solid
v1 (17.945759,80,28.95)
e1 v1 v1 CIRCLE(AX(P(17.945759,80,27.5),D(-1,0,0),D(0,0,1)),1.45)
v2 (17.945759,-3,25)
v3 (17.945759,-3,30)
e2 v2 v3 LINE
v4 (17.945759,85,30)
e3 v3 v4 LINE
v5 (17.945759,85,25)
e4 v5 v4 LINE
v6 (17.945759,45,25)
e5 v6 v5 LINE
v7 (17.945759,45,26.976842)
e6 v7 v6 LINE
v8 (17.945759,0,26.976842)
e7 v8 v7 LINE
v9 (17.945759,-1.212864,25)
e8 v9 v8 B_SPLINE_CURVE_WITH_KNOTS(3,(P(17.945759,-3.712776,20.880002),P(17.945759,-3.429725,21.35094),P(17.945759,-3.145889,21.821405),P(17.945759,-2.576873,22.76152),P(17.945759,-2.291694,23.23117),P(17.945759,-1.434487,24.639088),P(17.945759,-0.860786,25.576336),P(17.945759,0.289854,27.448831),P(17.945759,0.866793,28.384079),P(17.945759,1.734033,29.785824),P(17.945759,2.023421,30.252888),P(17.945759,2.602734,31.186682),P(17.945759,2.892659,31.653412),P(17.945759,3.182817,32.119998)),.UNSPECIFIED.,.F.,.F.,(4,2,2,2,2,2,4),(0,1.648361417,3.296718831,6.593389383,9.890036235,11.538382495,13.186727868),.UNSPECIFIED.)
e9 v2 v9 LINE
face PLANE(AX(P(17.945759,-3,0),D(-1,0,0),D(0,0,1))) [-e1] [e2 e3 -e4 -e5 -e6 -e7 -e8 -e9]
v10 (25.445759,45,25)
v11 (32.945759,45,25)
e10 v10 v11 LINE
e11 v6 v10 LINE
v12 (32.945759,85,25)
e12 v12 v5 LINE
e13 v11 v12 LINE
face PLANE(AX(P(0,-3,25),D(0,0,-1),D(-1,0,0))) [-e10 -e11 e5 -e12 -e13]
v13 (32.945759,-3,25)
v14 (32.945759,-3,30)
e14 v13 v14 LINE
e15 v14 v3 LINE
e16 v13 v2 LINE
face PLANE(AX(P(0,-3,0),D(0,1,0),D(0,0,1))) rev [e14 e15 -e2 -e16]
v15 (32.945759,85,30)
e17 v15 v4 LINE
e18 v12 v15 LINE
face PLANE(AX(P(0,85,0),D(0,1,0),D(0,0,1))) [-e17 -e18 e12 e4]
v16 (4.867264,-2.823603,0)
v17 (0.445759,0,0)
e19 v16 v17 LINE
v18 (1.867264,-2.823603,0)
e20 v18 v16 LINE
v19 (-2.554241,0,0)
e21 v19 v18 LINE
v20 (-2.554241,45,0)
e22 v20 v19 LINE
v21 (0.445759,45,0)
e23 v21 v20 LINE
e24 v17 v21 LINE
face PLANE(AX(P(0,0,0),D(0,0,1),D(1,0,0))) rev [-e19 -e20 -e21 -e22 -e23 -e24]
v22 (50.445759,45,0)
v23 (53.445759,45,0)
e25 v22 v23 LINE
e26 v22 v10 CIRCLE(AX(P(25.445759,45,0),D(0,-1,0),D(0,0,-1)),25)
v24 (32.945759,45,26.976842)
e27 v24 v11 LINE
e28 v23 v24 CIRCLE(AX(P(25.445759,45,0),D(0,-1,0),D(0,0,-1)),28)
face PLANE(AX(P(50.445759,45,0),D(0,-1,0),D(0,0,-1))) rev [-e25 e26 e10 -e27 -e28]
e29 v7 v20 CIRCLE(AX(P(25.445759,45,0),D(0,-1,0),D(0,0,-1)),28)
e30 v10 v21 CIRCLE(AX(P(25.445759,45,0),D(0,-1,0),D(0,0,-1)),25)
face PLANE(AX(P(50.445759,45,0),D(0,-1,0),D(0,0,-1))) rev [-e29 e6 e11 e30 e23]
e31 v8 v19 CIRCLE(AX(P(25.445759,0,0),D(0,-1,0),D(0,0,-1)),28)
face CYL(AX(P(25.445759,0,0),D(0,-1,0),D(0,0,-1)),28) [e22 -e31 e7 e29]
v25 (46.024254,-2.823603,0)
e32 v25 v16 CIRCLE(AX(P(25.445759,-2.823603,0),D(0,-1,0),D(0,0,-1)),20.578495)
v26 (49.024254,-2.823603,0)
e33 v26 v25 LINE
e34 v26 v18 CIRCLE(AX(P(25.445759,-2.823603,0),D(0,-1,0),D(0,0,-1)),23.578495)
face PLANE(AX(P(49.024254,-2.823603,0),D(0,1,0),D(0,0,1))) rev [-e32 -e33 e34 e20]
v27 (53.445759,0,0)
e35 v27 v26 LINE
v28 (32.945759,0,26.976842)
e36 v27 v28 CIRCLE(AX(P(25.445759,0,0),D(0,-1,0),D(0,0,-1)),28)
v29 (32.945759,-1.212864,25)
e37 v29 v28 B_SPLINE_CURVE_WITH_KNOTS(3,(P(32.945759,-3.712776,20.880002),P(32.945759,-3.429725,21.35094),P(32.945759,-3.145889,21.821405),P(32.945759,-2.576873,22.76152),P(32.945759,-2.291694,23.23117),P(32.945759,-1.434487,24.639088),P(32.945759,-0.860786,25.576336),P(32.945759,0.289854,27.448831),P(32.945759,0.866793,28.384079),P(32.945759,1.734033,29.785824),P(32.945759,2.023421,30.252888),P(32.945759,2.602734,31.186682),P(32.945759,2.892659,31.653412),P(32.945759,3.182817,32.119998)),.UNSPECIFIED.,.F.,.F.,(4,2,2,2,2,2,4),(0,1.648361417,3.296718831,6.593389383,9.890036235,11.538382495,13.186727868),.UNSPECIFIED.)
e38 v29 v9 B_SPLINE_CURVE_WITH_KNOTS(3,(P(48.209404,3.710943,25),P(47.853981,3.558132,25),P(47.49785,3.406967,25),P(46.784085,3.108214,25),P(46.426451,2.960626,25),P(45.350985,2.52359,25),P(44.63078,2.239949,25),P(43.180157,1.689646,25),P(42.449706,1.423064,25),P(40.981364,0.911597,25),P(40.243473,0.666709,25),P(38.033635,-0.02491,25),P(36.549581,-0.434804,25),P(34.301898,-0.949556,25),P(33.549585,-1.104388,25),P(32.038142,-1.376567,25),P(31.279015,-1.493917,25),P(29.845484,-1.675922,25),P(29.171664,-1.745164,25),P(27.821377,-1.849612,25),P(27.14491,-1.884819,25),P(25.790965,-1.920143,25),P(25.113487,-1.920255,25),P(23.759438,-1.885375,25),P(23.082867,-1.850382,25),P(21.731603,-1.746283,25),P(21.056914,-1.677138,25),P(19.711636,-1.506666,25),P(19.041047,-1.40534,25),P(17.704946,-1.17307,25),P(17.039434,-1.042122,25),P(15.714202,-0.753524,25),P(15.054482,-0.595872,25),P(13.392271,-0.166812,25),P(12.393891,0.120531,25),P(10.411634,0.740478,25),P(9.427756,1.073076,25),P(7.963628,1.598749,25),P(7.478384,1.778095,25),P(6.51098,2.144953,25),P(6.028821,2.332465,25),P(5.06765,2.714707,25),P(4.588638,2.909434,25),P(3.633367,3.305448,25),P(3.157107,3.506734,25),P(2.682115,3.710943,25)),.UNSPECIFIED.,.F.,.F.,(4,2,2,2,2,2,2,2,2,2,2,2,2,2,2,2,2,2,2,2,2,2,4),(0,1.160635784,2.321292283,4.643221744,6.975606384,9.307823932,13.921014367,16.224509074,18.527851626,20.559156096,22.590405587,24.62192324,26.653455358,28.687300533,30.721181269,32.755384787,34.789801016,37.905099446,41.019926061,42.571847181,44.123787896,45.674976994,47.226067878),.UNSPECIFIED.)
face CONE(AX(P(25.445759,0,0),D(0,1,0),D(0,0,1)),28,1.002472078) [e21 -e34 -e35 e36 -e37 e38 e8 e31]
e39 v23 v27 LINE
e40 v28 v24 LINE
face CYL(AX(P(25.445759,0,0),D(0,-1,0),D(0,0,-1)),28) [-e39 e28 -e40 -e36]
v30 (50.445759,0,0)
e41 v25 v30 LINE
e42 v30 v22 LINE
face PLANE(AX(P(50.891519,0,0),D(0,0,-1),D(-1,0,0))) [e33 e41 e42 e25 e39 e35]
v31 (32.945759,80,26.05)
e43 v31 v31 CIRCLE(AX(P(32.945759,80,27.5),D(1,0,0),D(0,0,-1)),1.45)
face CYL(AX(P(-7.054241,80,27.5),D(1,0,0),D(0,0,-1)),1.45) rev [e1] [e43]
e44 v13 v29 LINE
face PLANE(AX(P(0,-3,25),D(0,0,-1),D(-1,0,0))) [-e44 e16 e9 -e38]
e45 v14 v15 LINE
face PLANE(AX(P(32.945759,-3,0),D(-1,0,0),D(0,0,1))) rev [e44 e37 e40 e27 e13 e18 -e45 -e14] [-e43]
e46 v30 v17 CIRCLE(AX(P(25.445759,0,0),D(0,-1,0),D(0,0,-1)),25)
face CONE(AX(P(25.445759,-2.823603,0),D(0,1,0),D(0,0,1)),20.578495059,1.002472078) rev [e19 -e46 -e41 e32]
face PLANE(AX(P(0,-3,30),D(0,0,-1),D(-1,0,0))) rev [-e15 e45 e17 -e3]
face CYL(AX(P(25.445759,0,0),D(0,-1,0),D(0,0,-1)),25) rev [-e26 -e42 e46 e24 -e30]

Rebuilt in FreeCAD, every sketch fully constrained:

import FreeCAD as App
import Part
import Sketcher

V = App.Vector

doc = App.newDocument("Part")
body = doc.addObject("PartDesign::Body", "Body")

sketch1 = body.newObject("Sketcher::SketchObject", "Sketch")
sketch1.AttachmentSupport = (doc.getObject("XY_Plane"), [""])
sketch1.MapMode = "FlatFace"
sketch1.addGeometry([
    Part.LineSegment(V(4.9, -2.8, 0), V(0.4, 0, 0)),
    Part.LineSegment(V(0.4, 0, 0), V(0.4, 45, 0)),
    Part.LineSegment(V(0.4, 45, 0), V(-2.6, 45, 0)),
    Part.LineSegment(V(-2.6, 45, 0), V(-2.6, 0, 0)),
    Part.LineSegment(V(-2.6, 0, 0), V(1.9, -2.8, 0)),
    Part.LineSegment(V(1.9, -2.8, 0), V(4.9, -2.8, 0)),
], False)
sketch1.addGeometry(Part.LineSegment(V(25.4, -2.8, 0), V(25.4, 45, 0)), True)
sketch1.addConstraint([
    Sketcher.Constraint("Coincident", 0, 2, 1, 1),
    Sketcher.Constraint("Coincident", 1, 2, 2, 1),
    Sketcher.Constraint("Coincident", 2, 2, 3, 1),
    Sketcher.Constraint("Coincident", 3, 2, 4, 1),
    Sketcher.Constraint("Coincident", 4, 2, 5, 1),
    Sketcher.Constraint("Coincident", 5, 2, 0, 1),
    Sketcher.Constraint("Vertical", 1),
    Sketcher.Constraint("Horizontal", 2),
    Sketcher.Constraint("Vertical", 3),
    Sketcher.Constraint("Horizontal", 5),
    Sketcher.Constraint("Vertical", 6),
    Sketcher.Constraint("PointOnObject", 0, 2, -1),
    Sketcher.Constraint("PointOnObject", 3, 2, -1),
    Sketcher.Constraint("Parallel", 0, 4),
    Sketcher.Constraint("Horizontal", 5, 2, 6, 1),
    Sketcher.Constraint("Horizontal", 2, 2, 6, 2),
    Sketcher.Constraint("DistanceX", 2, 2, 2, 1, 3.0),
    Sketcher.Constraint("DistanceY", 1, 1, 1, 2, 45.0),
    Sketcher.Constraint("DistanceX", 0, 2, 6, 1, 25.0),
    Sketcher.Constraint("DistanceY", 6, 1, 6, 2, 47.823603),
    Sketcher.Constraint("DistanceX", -1, 1, 0, 2, 0.445759),
    Sketcher.Constraint("Distance", 0, 5.246184),
])
revolution = body.newObject("PartDesign::Revolution", "Revolution")
revolution.Profile = sketch1
revolution.ReferenceAxis = (sketch1, ["Axis0"])
revolution.Angle = 180

sketch2 = body.newObject("Sketcher::SketchObject", "Sketch001")
sketch2.AttachmentSupport = (doc.getObject("XZ_Plane"), [""])
sketch2.MapMode = "FlatFace"
sketch2.AttachmentOffset = App.Placement(V(0, 0, -45), App.Rotation())
sketch2.addGeometry([
    Part.LineSegment(V(33, 30, 0), V(33, 25, 0)),
    Part.LineSegment(V(33, 25, 0), V(18, 25, 0)),
    Part.LineSegment(V(18, 25, 0), V(18, 30, 0)),
    Part.LineSegment(V(18, 30, 0), V(33, 30, 0)),
], False)
sketch2.addConstraint([
    Sketcher.Constraint("Coincident", 0, 2, 1, 1),
    Sketcher.Constraint("Coincident", 1, 2, 2, 1),
    Sketcher.Constraint("Coincident", 2, 2, 3, 1),
    Sketcher.Constraint("Coincident", 3, 2, 0, 1),
    Sketcher.Constraint("Vertical", 0),
    Sketcher.Constraint("Horizontal", 1),
    Sketcher.Constraint("Vertical", 2),
    Sketcher.Constraint("Horizontal", 3),
    Sketcher.Constraint("DistanceX", 1, 2, 1, 1, 15.0),
    Sketcher.Constraint("DistanceY", 0, 2, 0, 1, 5.0),
    Sketcher.Constraint("DistanceY", -1, 1, 0, 2, 25.0),
    Sketcher.Constraint("DistanceX", -1, 1, 0, 2, 32.945759),
])
pad1 = body.newObject("PartDesign::Pad", "Pad")
pad1.Profile = sketch2
pad1.Type = "TwoLengths"
pad1.Length = 40
pad1.Length2 = 48
pad1.Reversed = True

sketch3 = body.newObject("Sketcher::SketchObject", "Sketch002")
sketch3.AttachmentSupport = (doc.getObject("YZ_Plane"), [""])
sketch3.MapMode = "FlatFace"
sketch3.AttachmentOffset = App.Placement(V(0, 0, 32.945759), App.Rotation())
sketch3.addGeometry(Part.Circle(V(80, 27.5, 0), V(0, 0, 1), 1.4), False)
sketch3.addConstraint([
    Sketcher.Constraint("Diameter", 0, 2.9),
    Sketcher.Constraint("DistanceX", -1, 1, 0, 3, 80.0),
    Sketcher.Constraint("DistanceY", -1, 1, 0, 3, 27.5),
])
pocket1 = body.newObject("PartDesign::Pocket", "Pocket")
pocket1.Profile = sketch3
pocket1.Length = 40

doc.recompute()
